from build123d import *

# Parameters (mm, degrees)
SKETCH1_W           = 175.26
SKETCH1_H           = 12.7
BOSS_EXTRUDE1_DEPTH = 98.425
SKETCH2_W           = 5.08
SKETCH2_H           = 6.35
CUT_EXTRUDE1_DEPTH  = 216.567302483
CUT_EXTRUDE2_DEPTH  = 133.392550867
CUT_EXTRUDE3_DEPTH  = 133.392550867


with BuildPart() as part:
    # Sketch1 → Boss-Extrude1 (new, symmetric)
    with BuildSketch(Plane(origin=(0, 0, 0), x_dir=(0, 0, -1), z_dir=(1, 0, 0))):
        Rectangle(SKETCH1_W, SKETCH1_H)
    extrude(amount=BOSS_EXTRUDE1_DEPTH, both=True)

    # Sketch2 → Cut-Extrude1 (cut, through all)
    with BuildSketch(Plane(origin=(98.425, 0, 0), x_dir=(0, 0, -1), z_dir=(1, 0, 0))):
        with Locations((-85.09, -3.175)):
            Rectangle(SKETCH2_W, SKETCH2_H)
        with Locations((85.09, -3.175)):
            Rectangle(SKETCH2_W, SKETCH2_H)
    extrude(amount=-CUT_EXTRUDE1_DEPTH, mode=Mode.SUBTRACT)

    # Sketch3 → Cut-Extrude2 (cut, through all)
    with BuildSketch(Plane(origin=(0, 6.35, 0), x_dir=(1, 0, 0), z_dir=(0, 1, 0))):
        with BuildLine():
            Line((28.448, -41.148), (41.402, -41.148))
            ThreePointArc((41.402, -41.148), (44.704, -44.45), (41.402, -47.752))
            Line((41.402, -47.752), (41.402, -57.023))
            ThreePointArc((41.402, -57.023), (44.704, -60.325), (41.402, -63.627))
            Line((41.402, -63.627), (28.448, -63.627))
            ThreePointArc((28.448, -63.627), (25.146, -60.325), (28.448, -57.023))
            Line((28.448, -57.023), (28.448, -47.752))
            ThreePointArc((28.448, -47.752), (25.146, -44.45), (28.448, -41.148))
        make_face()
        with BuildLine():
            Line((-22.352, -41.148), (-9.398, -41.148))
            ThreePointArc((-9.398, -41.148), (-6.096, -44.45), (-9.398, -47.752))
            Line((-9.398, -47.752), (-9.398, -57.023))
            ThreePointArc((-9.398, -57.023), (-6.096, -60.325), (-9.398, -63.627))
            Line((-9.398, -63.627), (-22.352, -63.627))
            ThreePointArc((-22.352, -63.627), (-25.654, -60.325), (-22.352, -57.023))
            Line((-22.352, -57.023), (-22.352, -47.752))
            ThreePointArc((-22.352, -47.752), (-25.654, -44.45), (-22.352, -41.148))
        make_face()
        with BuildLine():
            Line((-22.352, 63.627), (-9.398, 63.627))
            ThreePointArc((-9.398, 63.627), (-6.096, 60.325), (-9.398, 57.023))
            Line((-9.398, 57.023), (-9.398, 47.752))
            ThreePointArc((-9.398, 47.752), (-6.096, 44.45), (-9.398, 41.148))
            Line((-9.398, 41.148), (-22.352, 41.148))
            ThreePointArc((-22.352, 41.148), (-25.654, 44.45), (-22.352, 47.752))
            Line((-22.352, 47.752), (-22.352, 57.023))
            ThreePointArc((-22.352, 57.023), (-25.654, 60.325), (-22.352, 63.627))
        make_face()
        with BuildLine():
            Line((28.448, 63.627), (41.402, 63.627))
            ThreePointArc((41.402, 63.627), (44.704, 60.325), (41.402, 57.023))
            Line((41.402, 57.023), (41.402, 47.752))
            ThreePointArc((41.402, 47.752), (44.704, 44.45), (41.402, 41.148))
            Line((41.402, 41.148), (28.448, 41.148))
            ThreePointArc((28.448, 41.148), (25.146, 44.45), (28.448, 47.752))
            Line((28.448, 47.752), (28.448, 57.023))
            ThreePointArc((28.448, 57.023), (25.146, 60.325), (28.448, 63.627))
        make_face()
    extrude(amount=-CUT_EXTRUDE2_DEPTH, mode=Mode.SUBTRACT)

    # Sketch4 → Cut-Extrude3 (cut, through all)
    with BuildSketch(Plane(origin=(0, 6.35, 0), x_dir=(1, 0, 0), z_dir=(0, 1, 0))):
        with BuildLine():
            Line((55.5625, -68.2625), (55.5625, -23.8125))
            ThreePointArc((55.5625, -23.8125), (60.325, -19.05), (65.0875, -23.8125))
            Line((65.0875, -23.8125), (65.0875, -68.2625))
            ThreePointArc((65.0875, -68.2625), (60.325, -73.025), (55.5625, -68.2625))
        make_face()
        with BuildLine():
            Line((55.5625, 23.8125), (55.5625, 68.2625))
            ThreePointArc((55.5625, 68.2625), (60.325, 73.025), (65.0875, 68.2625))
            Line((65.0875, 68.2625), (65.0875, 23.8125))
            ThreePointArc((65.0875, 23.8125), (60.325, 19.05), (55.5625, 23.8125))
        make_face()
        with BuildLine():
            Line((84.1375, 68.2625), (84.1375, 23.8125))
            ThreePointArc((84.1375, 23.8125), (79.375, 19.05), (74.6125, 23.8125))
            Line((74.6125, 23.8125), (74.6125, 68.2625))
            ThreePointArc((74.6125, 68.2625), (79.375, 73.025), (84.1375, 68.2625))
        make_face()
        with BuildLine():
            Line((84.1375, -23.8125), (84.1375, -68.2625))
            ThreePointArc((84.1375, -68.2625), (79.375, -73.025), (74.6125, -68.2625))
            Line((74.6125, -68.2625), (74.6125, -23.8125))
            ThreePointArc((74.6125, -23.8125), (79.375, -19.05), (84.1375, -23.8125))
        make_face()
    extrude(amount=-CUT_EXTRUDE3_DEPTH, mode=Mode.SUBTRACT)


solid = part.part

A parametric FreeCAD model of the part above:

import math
import FreeCAD as App
import Part
import Sketcher
from FreeCAD import Vector
Q = App.Units.Quantity


def add_polygon(sketch, points):
    """Adds a closed chain of lines whose ends are joined by coincident constraints."""
    first, n = sketch.GeometryCount, len(points)
    for a, b in zip(points, points[1:] + points[:1]):
        sketch.addGeometry(Part.LineSegment(App.Vector(*a, 0), App.Vector(*b, 0)), False)
    for i in range(n):
        sketch.addConstraint(Sketcher.Constraint("Coincident", first + i, 2, first + (i + 1) % n, 1))

doc = App.newDocument("Part")
body = doc.addObject("PartDesign::Body", "Body")

# Sketch on YZ plane
sketch1 = body.newObject("Sketcher::SketchObject", "Sketch")
sketch1.AttachmentSupport = (doc.getObject("YZ_Plane"), [""])
sketch1.MapMode = "FlatFace"
add_polygon(sketch1, [(6, 88), (-6, 88), (-6, -88), (6, -88)])  # lines 0-3
sketch1.addConstraint(Sketcher.Constraint("Horizontal", 0))
sketch1.addConstraint(Sketcher.Constraint("Vertical", 1))
sketch1.addConstraint(Sketcher.Constraint("Horizontal", 2))
sketch1.addConstraint(Sketcher.Constraint("Vertical", 3))
sketch1.addConstraint(Sketcher.Constraint("Symmetric", 0, 2, 2, 2, -1, 1))
sketch1.addConstraint(Sketcher.Constraint("DistanceX", 0, 2, 0, 1, Q("0.5 in")))
sketch1.addConstraint(Sketcher.Constraint("DistanceY", 1, 2, 1, 1, Q("6.9 in")))
pad1 = body.newObject("PartDesign::Pad", "Pad")
pad1.Profile = sketch1
pad1.Length = Q("7.75 in")
pad1.Midplane = True

# Sketch on YZ plane
sketch2 = body.newObject("Sketcher::SketchObject", "Sketch001")
sketch2.AttachmentSupport = (doc.getObject("YZ_Plane"), [""])
sketch2.MapMode = "FlatFace"
sketch2.AttachmentOffset = App.Placement(Vector(0, 0, 3.875 * 25.4), App.Rotation())
add_polygon(sketch2, [(0, 88), (-6, 88), (-6, 83), (0, 83)])  # lines 0-3
add_polygon(sketch2, [(0, -83), (-6, -83), (-6, -88), (0, -88)])  # lines 4-7
sketch2.addConstraint(Sketcher.Constraint("Horizontal", 0))
sketch2.addConstraint(Sketcher.Constraint("Vertical", 1))
sketch2.addConstraint(Sketcher.Constraint("Horizontal", 2))
sketch2.addConstraint(Sketcher.Constraint("Vertical", 3))
sketch2.addConstraint(Sketcher.Constraint("Horizontal", 4))
sketch2.addConstraint(Sketcher.Constraint("Vertical", 5))
sketch2.addConstraint(Sketcher.Constraint("Horizontal", 6))
sketch2.addConstraint(Sketcher.Constraint("Vertical", 7))
sketch2.addConstraint(Sketcher.Constraint("Symmetric", 3, 2, 6, 2, -1, 1))
sketch2.addConstraint(Sketcher.Constraint("Symmetric", 1, 2, 4, 2, -1))
sketch2.addConstraint(Sketcher.Constraint("PointOnObject", 2, 2, -2))
sketch2.addConstraint(Sketcher.Constraint("DistanceY", 1, 2, 1, 1, Q("0.2 in")))
sketch2.addConstraint(Sketcher.Constraint("DistanceX", 0, 2, 0, 1, Q("0.25 in")))
sketch2.addConstraint(Sketcher.Constraint("DistanceY", 4, 2, 1, 2, Q("6.5 in")))
pocket1 = body.newObject("PartDesign::Pocket", "Pocket")
pocket1.Profile = sketch2
pocket1.Type = "ThroughAll"

# Sketch on XZ plane
sketch3 = body.newObject("Sketcher::SketchObject", "Sketch002")
sketch3.AttachmentSupport = (doc.getObject("XZ_Plane"), [""])
sketch3.MapMode = "FlatFace"
sketch3.AttachmentOffset = App.Placement(Vector(0, 0, -0.25 * 25.4), App.Rotation())
sketch3.addGeometry(Part.LineSegment(Vector(41.4, 41.1, 0), Vector(28.4, 41.1, 0)), False)
sketch3.addGeometry(Part.ArcOfCircle(Part.Circle(Vector(28.4, 44.5, 0), Vector(0, 0, 1), 3.3), math.radians(90), math.radians(270)), False)
sketch3.addGeometry(Part.LineSegment(Vector(28.4, 47.8, 0), Vector(28.4, 57, 0)), False)
sketch3.addGeometry(Part.ArcOfCircle(Part.Circle(Vector(28.4, 60.3, 0), Vector(0, 0, 1), 3.3), math.radians(90), math.radians(270)), False)
sketch3.addGeometry(Part.LineSegment(Vector(28.4, 63.6, 0), Vector(41.4, 63.6, 0)), False)
sketch3.addGeometry(Part.ArcOfCircle(Part.Circle(Vector(41.4, 60.3, 0), Vector(0, 0, 1), 3.3), math.radians(-90), math.radians(90)), False)
sketch3.addGeometry(Part.LineSegment(Vector(41.4, 57, 0), Vector(41.4, 47.8, 0)), False)
sketch3.addGeometry(Part.ArcOfCircle(Part.Circle(Vector(41.4, 44.5, 0), Vector(0, 0, 1), 3.3), math.radians(-90), math.radians(90)), False)
sketch3.addGeometry(Part.LineSegment(Vector(-9.4, 41.1, 0), Vector(-22.4, 41.1, 0)), False)
sketch3.addGeometry(Part.ArcOfCircle(Part.Circle(Vector(-22.4, 44.5, 0), Vector(0, 0, 1), 3.3), math.radians(90), math.radians(270)), False)
sketch3.addGeometry(Part.LineSegment(Vector(-22.4, 47.8, 0), Vector(-22.4, 57, 0)), False)
sketch3.addGeometry(Part.ArcOfCircle(Part.Circle(Vector(-22.4, 60.3, 0), Vector(0, 0, 1), 3.3), math.radians(90), math.radians(270)), False)
sketch3.addGeometry(Part.LineSegment(Vector(-22.4, 63.6, 0), Vector(-9.4, 63.6, 0)), False)
sketch3.addGeometry(Part.ArcOfCircle(Part.Circle(Vector(-9.4, 60.3, 0), Vector(0, 0, 1), 3.3), math.radians(-90), math.radians(90)), False)
sketch3.addGeometry(Part.LineSegment(Vector(-9.4, 57, 0), Vector(-9.4, 47.8, 0)), False)
sketch3.addGeometry(Part.ArcOfCircle(Part.Circle(Vector(-9.4, 44.5, 0), Vector(0, 0, 1), 3.3), math.radians(-90), math.radians(90)), False)
sketch3.addGeometry(Part.LineSegment(Vector(-9.4, -63.6, 0), Vector(-22.4, -63.6, 0)), False)
sketch3.addGeometry(Part.ArcOfCircle(Part.Circle(Vector(-22.4, -60.3, 0), Vector(0, 0, 1), 3.3), math.radians(90), math.radians(270)), False)
sketch3.addGeometry(Part.LineSegment(Vector(-22.4, -57, 0), Vector(-22.4, -47.8, 0)), False)
sketch3.addGeometry(Part.ArcOfCircle(Part.Circle(Vector(-22.4, -44.5, 0), Vector(0, 0, 1), 3.3), math.radians(90), math.radians(270)), False)
sketch3.addGeometry(Part.LineSegment(Vector(-22.4, -41.1, 0), Vector(-9.4, -41.1, 0)), False)
sketch3.addGeometry(Part.ArcOfCircle(Part.Circle(Vector(-9.4, -44.5, 0), Vector(0, 0, 1), 3.3), math.radians(-90), math.radians(90)), False)
sketch3.addGeometry(Part.LineSegment(Vector(-9.4, -47.8, 0), Vector(-9.4, -57, 0)), False)
sketch3.addGeometry(Part.ArcOfCircle(Part.Circle(Vector(-9.4, -60.3, 0), Vector(0, 0, 1), 3.3), math.radians(-90), math.radians(90)), False)
sketch3.addGeometry(Part.LineSegment(Vector(41.4, -63.6, 0), Vector(28.4, -63.6, 0)), False)
sketch3.addGeometry(Part.ArcOfCircle(Part.Circle(Vector(28.4, -60.3, 0), Vector(0, 0, 1), 3.3), math.radians(90), math.radians(270)), False)
sketch3.addGeometry(Part.LineSegment(Vector(28.4, -57, 0), Vector(28.4, -47.8, 0)), False)
sketch3.addGeometry(Part.ArcOfCircle(Part.Circle(Vector(28.4, -44.5, 0), Vector(0, 0, 1), 3.3), math.radians(90), math.radians(270)), False)
sketch3.addGeometry(Part.LineSegment(Vector(28.4, -41.1, 0), Vector(41.4, -41.1, 0)), False)
sketch3.addGeometry(Part.ArcOfCircle(Part.Circle(Vector(41.4, -44.5, 0), Vector(0, 0, 1), 3.3), math.radians(-90), math.radians(90)), False)
sketch3.addGeometry(Part.LineSegment(Vector(41.4, -47.8, 0), Vector(41.4, -57, 0)), False)
sketch3.addGeometry(Part.ArcOfCircle(Part.Circle(Vector(41.4, -60.3, 0), Vector(0, 0, 1), 3.3), math.radians(-90), math.radians(90)), False)
sketch3.addConstraint(Sketcher.Constraint("Tangent", 0, 2, 1, 2))
sketch3.addConstraint(Sketcher.Constraint("Coincident", 1, 1, 2, 1))
sketch3.addConstraint(Sketcher.Constraint("Coincident", 2, 2, 3, 2))
sketch3.addConstraint(Sketcher.Constraint("Tangent", 3, 1, 4, 1))
sketch3.addConstraint(Sketcher.Constraint("Tangent", 4, 2, 5, 2))
sketch3.addConstraint(Sketcher.Constraint("Coincident", 5, 1, 6, 1))
sketch3.addConstraint(Sketcher.Constraint("Coincident", 6, 2, 7, 2))
sketch3.addConstraint(Sketcher.Constraint("Tangent", 7, 1, 0, 1))
sketch3.addConstraint(Sketcher.Constraint("Tangent", 8, 2, 9, 2))
sketch3.addConstraint(Sketcher.Constraint("Coincident", 9, 1, 10, 1))
sketch3.addConstraint(Sketcher.Constraint("Coincident", 10, 2, 11, 2))
sketch3.addConstraint(Sketcher.Constraint("Tangent", 11, 1, 12, 1))
sketch3.addConstraint(Sketcher.Constraint("Tangent", 12, 2, 13, 2))
sketch3.addConstraint(Sketcher.Constraint("Coincident", 13, 1, 14, 1))
sketch3.addConstraint(Sketcher.Constraint("Coincident", 14, 2, 15, 2))
sketch3.addConstraint(Sketcher.Constraint("Tangent", 15, 1, 8, 1))
sketch3.addConstraint(Sketcher.Constraint("Tangent", 16, 2, 17, 2))
sketch3.addConstraint(Sketcher.Constraint("Coincident", 17, 1, 18, 1))
sketch3.addConstraint(Sketcher.Constraint("Coincident", 18, 2, 19, 2))
sketch3.addConstraint(Sketcher.Constraint("Tangent", 19, 1, 20, 1))
sketch3.addConstraint(Sketcher.Constraint("Tangent", 20, 2, 21, 2))
sketch3.addConstraint(Sketcher.Constraint("Coincident", 21, 1, 22, 1))
sketch3.addConstraint(Sketcher.Constraint("Coincident", 22, 2, 23, 2))
sketch3.addConstraint(Sketcher.Constraint("Tangent", 23, 1, 16, 1))
sketch3.addConstraint(Sketcher.Constraint("Tangent", 24, 2, 25, 2))
sketch3.addConstraint(Sketcher.Constraint("Coincident", 25, 1, 26, 1))
sketch3.addConstraint(Sketcher.Constraint("Coincident", 26, 2, 27, 2))
sketch3.addConstraint(Sketcher.Constraint("Tangent", 27, 1, 28, 1))
sketch3.addConstraint(Sketcher.Constraint("Tangent", 28, 2, 29, 2))
sketch3.addConstraint(Sketcher.Constraint("Coincident", 29, 1, 30, 1))
sketch3.addConstraint(Sketcher.Constraint("Coincident", 30, 2, 31, 2))
sketch3.addConstraint(Sketcher.Constraint("Tangent", 31, 1, 24, 1))
sketch3.addConstraint(Sketcher.Constraint("Horizontal", 0))
sketch3.addConstraint(Sketcher.Constraint("Vertical", 2))
sketch3.addConstraint(Sketcher.Constraint("Horizontal", 4))
sketch3.addConstraint(Sketcher.Constraint("Vertical", 6))
sketch3.addConstraint(Sketcher.Constraint("Horizontal", 8))
sketch3.addConstraint(Sketcher.Constraint("Vertical", 10))
sketch3.addConstraint(Sketcher.Constraint("Horizontal", 12))
sketch3.addConstraint(Sketcher.Constraint("Vertical", 14))
sketch3.addConstraint(Sketcher.Constraint("Horizontal", 16))
sketch3.addConstraint(Sketcher.Constraint("Vertical", 18))
sketch3.addConstraint(Sketcher.Constraint("Horizontal", 20))
sketch3.addConstraint(Sketcher.Constraint("Vertical", 22))
sketch3.addConstraint(Sketcher.Constraint("Horizontal", 24))
sketch3.addConstraint(Sketcher.Constraint("Vertical", 26))
sketch3.addConstraint(Sketcher.Constraint("Horizontal", 28))
sketch3.addConstraint(Sketcher.Constraint("Vertical", 30))
sketch3.addConstraint(Sketcher.Constraint("Equal", 1, 3))
sketch3.addConstraint(Sketcher.Constraint("Equal", 3, 5))
sketch3.addConstraint(Sketcher.Constraint("Equal", 5, 7))
sketch3.addConstraint(Sketcher.Constraint("Equal", 7, 9))
sketch3.addConstraint(Sketcher.Constraint("Equal", 9, 11))
sketch3.addConstraint(Sketcher.Constraint("Equal", 11, 13))
sketch3.addConstraint(Sketcher.Constraint("Equal", 13, 15))
sketch3.addConstraint(Sketcher.Constraint("Equal", 15, 17))
sketch3.addConstraint(Sketcher.Constraint("Equal", 17, 19))
sketch3.addConstraint(Sketcher.Constraint("Equal", 19, 21))
sketch3.addConstraint(Sketcher.Constraint("Equal", 21, 23))
sketch3.addConstraint(Sketcher.Constraint("Equal", 23, 25))
sketch3.addConstraint(Sketcher.Constraint("Equal", 25, 27))
sketch3.addConstraint(Sketcher.Constraint("Equal", 27, 29))
sketch3.addConstraint(Sketcher.Constraint("Equal", 29, 31))
sketch3.addConstraint(Sketcher.Constraint("Symmetric", 11, 3, 17, 3, -1))
sketch3.addConstraint(Sketcher.Constraint("Symmetric", 9, 3, 19, 3, -1))
sketch3.addConstraint(Sketcher.Constraint("Symmetric", 3, 3, 25, 3, -1))
sketch3.addConstraint(Sketcher.Constraint("Symmetric", 1, 3, 27, 3, -1))
sketch3.addConstraint(Sketcher.Constraint("Horizontal", 7, 3, 9, 3))
sketch3.addConstraint(Sketcher.Constraint("Horizontal", 5, 3, 11, 3))
sketch3.addConstraint(Sketcher.Constraint("Vertical", 1, 3, 3, 3))
sketch3.addConstraint(Sketcher.Constraint("Vertical", 5, 3, 7, 3))
sketch3.addConstraint(Sketcher.Constraint("Vertical", 9, 3, 11, 3))
sketch3.addConstraint(Sketcher.Constraint("Vertical", 13, 3, 15, 3))
sketch3.addConstraint(Sketcher.Constraint("Vertical", 15, 3, 21, 3))
sketch3.addConstraint(Sketcher.Constraint("Vertical", 21, 3, 23, 3))
sketch3.addConstraint(Sketcher.Constraint("Vertical", 7, 3, 29, 3))
sketch3.addConstraint(Sketcher.Constraint("Vertical", 29, 3, 31, 3))
sketch3.addConstraint(Sketcher.Constraint("Vertical", 0, 2, 1, 1))
sketch3.addConstraint(Sketcher.Constraint("Vertical", 4, 2, 5, 1))
sketch3.addConstraint(Sketcher.Constraint("Vertical", 8, 2, 9, 1))
sketch3.addConstraint(Sketcher.Constraint("Vertical", 12, 2, 13, 1))
sketch3.addConstraint(Sketcher.Constraint("Vertical", 16, 2, 17, 1))
sketch3.addConstraint(Sketcher.Constraint("Vertical", 20, 2, 21, 1))
sketch3.addConstraint(Sketcher.Constraint("Vertical", 24, 2, 25, 1))
sketch3.addConstraint(Sketcher.Constraint("Vertical", 28, 2, 29, 1))
sketch3.addConstraint(Sketcher.Constraint("Equal", 4, 8))
sketch3.addConstraint(Sketcher.Constraint("Radius", 1, Q("0.13 in")))
sketch3.addConstraint(Sketcher.Constraint("DistanceX", 9, 3, 1, 3, Q("2 in")))
sketch3.addConstraint(Sketcher.Constraint("DistanceX", 0, 2, 0, 1, Q("0.51 in")))
sketch3.addConstraint(Sketcher.Constraint("DistanceY", 19, 3, 9, 3, Q("3.5 in")))
sketch3.addConstraint(Sketcher.Constraint("DistanceY", 2, 1, 2, 2, Q("0.365 in")))
sketch3.addConstraint(Sketcher.Constraint("DistanceX", -1, 1, 1, 3, Q("1.12 in")))
pocket2 = body.newObject("PartDesign::Pocket", "Pocket001")
pocket2.Profile = sketch3
pocket2.Type = "ThroughAll"
pocket2.Reversed = True

# Sketch on XZ plane
sketch4 = body.newObject("Sketcher::SketchObject", "Sketch003")
sketch4.AttachmentSupport = (doc.getObject("XZ_Plane"), [""])
sketch4.MapMode = "FlatFace"
sketch4.AttachmentOffset = App.Placement(Vector(0, 0, -0.25 * 25.4), App.Rotation())
sketch4.addGeometry(Part.LineSegment(Vector(55.6, 23.8, 0), Vector(55.6, 68.3, 0)), False)
sketch4.addGeometry(Part.ArcOfCircle(Part.Circle(Vector(60.3, 68.3, 0), Vector(0, 0, 1), 4.8), math.radians(0), math.radians(180)), False)
sketch4.addGeometry(Part.LineSegment(Vector(65.1, 68.3, 0), Vector(65.1, 23.8, 0)), False)
sketch4.addGeometry(Part.ArcOfCircle(Part.Circle(Vector(60.3, 23.8, 0), Vector(0, 0, 1), 4.8), math.radians(180), math.radians(360)), False)
sketch4.addGeometry(Part.LineSegment(Vector(55.6, -68.3, 0), Vector(55.6, -23.8, 0)), False)
sketch4.addGeometry(Part.ArcOfCircle(Part.Circle(Vector(60.3, -23.8, 0), Vector(0, 0, 1), 4.8), math.radians(0), math.radians(180)), False)
sketch4.addGeometry(Part.LineSegment(Vector(65.1, -23.8, 0), Vector(65.1, -68.3, 0)), False)
sketch4.addGeometry(Part.ArcOfCircle(Part.Circle(Vector(60.3, -68.3, 0), Vector(0, 0, 1), 4.8), math.radians(180), math.radians(360)), False)
sketch4.addGeometry(Part.LineSegment(Vector(84.1, -23.8, 0), Vector(84.1, -68.3, 0)), False)
sketch4.addGeometry(Part.ArcOfCircle(Part.Circle(Vector(79.4, -68.3, 0), Vector(0, 0, 1), 4.8), math.radians(180), math.radians(360)), False)
sketch4.addGeometry(Part.LineSegment(Vector(74.6, -68.3, 0), Vector(74.6, -23.8, 0)), False)
sketch4.addGeometry(Part.ArcOfCircle(Part.Circle(Vector(79.4, -23.8, 0), Vector(0, 0, 1), 4.8), math.radians(0), math.radians(180)), False)
sketch4.addGeometry(Part.LineSegment(Vector(84.1, 68.3, 0), Vector(84.1, 23.8, 0)), False)
sketch4.addGeometry(Part.ArcOfCircle(Part.Circle(Vector(79.4, 23.8, 0), Vector(0, 0, 1), 4.8), math.radians(180), math.radians(360)), False)
sketch4.addGeometry(Part.LineSegment(Vector(74.6, 23.8, 0), Vector(74.6, 68.3, 0)), False)
sketch4.addGeometry(Part.ArcOfCircle(Part.Circle(Vector(79.4, 68.3, 0), Vector(0, 0, 1), 4.8), math.radians(0), math.radians(180)), False)
sketch4.addConstraint(Sketcher.Constraint("Tangent", 0, 2, 1, 2))
sketch4.addConstraint(Sketcher.Constraint("Tangent", 1, 1, 2, 1))
sketch4.addConstraint(Sketcher.Constraint("Tangent", 2, 2, 3, 2))
sketch4.addConstraint(Sketcher.Constraint("Tangent", 3, 1, 0, 1))
sketch4.addConstraint(Sketcher.Constraint("Tangent", 4, 2, 5, 2))
sketch4.addConstraint(Sketcher.Constraint("Tangent", 5, 1, 6, 1))
sketch4.addConstraint(Sketcher.Constraint("Tangent", 6, 2, 7, 2))
sketch4.addConstraint(Sketcher.Constraint("Tangent", 7, 1, 4, 1))
sketch4.addConstraint(Sketcher.Constraint("Tangent", 8, 2, 9, 2))
sketch4.addConstraint(Sketcher.Constraint("Tangent", 9, 1, 10, 1))
sketch4.addConstraint(Sketcher.Constraint("Tangent", 10, 2, 11, 2))
sketch4.addConstraint(Sketcher.Constraint("Tangent", 11, 1, 8, 1))
sketch4.addConstraint(Sketcher.Constraint("Tangent", 12, 2, 13, 2))
sketch4.addConstraint(Sketcher.Constraint("Tangent", 13, 1, 14, 1))
sketch4.addConstraint(Sketcher.Constraint("Tangent", 14, 2, 15, 2))
sketch4.addConstraint(Sketcher.Constraint("Tangent", 15, 1, 12, 1))
sketch4.addConstraint(Sketcher.Constraint("Vertical", 0))
sketch4.addConstraint(Sketcher.Constraint("Vertical", 2))
sketch4.addConstraint(Sketcher.Constraint("Vertical", 4))
sketch4.addConstraint(Sketcher.Constraint("Vertical", 6))
sketch4.addConstraint(Sketcher.Constraint("Vertical", 8))
sketch4.addConstraint(Sketcher.Constraint("Vertical", 10))
sketch4.addConstraint(Sketcher.Constraint("Vertical", 12))
sketch4.addConstraint(Sketcher.Constraint("Vertical", 14))
sketch4.addConstraint(Sketcher.Constraint("Equal", 3, 5))
sketch4.addConstraint(Sketcher.Constraint("Equal", 7, 9))
sketch4.addConstraint(Sketcher.Constraint("Equal", 11, 13))
sketch4.addConstraint(Sketcher.Constraint("Symmetric", 3, 3, 5, 3, -1))
sketch4.addConstraint(Sketcher.Constraint("Symmetric", 11, 3, 13, 3, -1))
sketch4.addConstraint(Sketcher.Constraint("Horizontal", 7, 3, 9, 3))
sketch4.addConstraint(Sketcher.Constraint("Horizontal", 5, 3, 11, 3))
sketch4.addConstraint(Sketcher.Constraint("Horizontal", 1, 3, 15, 3))
sketch4.addConstraint(Sketcher.Constraint("Equal", 2, 4))
sketch4.addConstraint(Sketcher.Constraint("Radius", 1, Q("0.1875 in")))
sketch4.addConstraint(Sketcher.Constraint("DistanceY", 0, 1, 0, 2, Q("1.75 in")))
sketch4.addConstraint(Sketcher.Constraint("DistanceX", 7, 3, 9, 3, Q("0.75 in")))
sketch4.addConstraint(Sketcher.Constraint("DistanceX", -1, 1, 1, 3, Q("2.375 in")))
sketch4.addConstraint(Sketcher.Constraint("DistanceY", -1, 1, 1, 3, Q("2.6875 in")))
pocket3 = body.newObject("PartDesign::Pocket", "Pocket002")
pocket3.Profile = sketch4
pocket3.Type = "ThroughAll"
pocket3.Reversed = True

doc.recompute()
